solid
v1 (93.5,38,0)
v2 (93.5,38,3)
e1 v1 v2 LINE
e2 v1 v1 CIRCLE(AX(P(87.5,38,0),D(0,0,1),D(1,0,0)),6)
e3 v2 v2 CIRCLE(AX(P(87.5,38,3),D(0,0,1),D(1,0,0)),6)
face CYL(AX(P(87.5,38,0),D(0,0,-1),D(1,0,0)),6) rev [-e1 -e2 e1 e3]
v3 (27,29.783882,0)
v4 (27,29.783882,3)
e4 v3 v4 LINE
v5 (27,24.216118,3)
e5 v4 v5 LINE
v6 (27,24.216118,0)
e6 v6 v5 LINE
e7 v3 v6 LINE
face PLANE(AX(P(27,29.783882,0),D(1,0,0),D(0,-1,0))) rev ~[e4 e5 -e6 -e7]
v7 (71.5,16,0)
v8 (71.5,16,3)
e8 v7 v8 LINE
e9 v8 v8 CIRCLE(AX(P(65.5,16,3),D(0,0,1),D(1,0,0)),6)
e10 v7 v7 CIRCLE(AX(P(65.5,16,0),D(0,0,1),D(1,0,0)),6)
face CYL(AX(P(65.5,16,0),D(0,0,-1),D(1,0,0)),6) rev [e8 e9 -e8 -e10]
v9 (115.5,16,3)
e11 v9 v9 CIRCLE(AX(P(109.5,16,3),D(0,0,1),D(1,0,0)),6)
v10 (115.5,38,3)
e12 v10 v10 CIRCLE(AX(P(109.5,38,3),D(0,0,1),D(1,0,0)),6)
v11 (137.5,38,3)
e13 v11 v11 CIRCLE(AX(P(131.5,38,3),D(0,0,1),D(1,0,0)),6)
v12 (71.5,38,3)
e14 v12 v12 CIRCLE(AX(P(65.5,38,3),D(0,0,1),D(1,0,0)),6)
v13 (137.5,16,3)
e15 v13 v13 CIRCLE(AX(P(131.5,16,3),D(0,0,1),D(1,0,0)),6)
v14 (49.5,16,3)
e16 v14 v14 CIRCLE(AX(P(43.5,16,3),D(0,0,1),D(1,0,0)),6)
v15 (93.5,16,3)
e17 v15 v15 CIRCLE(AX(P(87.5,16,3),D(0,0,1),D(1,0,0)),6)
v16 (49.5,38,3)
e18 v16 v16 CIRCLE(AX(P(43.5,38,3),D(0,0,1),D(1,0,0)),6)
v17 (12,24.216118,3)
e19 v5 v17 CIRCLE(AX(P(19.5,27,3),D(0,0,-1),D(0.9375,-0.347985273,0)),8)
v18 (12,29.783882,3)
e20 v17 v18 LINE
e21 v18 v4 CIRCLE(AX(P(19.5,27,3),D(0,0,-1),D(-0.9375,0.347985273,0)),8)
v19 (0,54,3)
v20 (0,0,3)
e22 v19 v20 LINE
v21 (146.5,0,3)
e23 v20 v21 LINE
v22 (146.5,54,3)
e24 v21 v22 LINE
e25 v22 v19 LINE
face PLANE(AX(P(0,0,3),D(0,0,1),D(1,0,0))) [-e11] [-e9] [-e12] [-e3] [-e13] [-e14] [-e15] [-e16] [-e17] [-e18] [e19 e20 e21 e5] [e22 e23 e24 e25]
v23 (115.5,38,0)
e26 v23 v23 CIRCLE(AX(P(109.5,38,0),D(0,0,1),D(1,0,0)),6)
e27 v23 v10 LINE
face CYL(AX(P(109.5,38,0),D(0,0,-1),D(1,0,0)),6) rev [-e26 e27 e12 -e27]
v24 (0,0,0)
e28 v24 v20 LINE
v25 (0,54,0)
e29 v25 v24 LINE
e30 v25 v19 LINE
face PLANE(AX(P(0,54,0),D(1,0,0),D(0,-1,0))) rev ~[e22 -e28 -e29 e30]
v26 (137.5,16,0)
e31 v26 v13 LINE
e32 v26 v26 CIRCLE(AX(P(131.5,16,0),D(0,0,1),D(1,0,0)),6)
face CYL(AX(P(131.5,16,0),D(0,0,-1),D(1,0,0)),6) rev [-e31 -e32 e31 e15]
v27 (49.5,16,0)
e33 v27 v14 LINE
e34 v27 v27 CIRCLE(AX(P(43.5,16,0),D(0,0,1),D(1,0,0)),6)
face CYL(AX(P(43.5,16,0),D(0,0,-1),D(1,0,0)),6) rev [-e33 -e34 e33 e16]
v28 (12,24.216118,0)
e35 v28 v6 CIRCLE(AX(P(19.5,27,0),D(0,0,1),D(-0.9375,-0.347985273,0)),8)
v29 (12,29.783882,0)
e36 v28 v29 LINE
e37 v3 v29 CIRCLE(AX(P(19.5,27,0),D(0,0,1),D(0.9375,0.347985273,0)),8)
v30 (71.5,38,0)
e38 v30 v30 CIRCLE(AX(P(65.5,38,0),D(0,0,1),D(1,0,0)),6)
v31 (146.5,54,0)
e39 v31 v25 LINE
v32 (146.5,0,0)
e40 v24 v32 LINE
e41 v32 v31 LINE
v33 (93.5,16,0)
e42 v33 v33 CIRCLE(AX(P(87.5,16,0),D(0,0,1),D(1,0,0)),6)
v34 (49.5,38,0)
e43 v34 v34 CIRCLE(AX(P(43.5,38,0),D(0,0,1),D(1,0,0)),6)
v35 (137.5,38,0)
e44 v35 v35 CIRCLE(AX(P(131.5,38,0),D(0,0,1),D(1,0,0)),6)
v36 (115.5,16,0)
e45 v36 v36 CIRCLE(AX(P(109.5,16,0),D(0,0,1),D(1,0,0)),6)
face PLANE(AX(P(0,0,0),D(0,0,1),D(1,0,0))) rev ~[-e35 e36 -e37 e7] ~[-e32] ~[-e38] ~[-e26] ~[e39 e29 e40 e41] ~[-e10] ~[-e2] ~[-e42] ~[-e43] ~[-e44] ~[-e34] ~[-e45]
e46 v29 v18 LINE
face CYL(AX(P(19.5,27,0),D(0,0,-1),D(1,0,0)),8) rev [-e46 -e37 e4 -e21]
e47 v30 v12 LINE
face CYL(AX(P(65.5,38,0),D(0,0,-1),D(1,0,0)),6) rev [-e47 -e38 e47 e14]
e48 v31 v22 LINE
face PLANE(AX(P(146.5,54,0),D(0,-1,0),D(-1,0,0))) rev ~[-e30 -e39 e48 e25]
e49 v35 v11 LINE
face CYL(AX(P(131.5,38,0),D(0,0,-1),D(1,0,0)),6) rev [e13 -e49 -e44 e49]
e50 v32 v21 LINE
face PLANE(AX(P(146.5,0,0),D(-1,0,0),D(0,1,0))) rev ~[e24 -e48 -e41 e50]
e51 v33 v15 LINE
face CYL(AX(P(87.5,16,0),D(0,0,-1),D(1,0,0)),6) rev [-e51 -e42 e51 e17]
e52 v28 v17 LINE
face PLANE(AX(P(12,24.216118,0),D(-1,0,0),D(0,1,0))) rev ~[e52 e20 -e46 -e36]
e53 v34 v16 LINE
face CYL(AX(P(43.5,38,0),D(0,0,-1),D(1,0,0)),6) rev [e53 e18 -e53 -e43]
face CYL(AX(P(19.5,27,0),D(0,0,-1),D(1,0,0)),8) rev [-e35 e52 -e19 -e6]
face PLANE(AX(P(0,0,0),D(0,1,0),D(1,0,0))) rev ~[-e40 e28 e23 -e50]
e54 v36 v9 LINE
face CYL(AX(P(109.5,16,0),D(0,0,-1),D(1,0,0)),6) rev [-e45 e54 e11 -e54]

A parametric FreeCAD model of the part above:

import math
import FreeCAD as App
import Part
import Sketcher
from FreeCAD import Vector


def add_polygon(sketch, points):
    """Adds a closed chain of lines whose ends are joined by coincident constraints."""
    first, n = sketch.GeometryCount, len(points)
    for a, b in zip(points, points[1:] + points[:1]):
        sketch.addGeometry(Part.LineSegment(App.Vector(*a, 0), App.Vector(*b, 0)), False)
    for i in range(n):
        sketch.addConstraint(Sketcher.Constraint("Coincident", first + i, 2, first + (i + 1) % n, 1))

doc = App.newDocument("Part")
params = doc.addObject("Spreadsheet::Sheet", "Params")
for row, (alias, value) in enumerate([
    ("sketch1_diameter", "12 mm"),
    ("sketch1_radius", "8 mm"),
    ("pad1_length", "3 mm"),
], start=1):
    params.set(f"A{row}", alias)
    params.set(f"B{row}", "=" + value)
    params.setAlias(f"B{row}", alias)

body = doc.addObject("PartDesign::Body", "Body")

# Sketch on XY plane
sketch1 = body.newObject("Sketcher::SketchObject", "Sketch")
sketch1.AttachmentSupport = (doc.getObject("XY_Plane"), [""])
sketch1.MapMode = "FlatFace"
add_polygon(sketch1, [(0, 54), (0, 0), (146, 0), (146, 54)])  # lines 0-3
sketch1.addGeometry(Part.Circle(Vector(44, 16, 0), Vector(0, 0, 1), 6), False)  # 4
sketch1.addGeometry(Part.Circle(Vector(66, 16, 0), Vector(0, 0, 1), 6), False)  # 5
sketch1.addGeometry(Part.Circle(Vector(88, 16, 0), Vector(0, 0, 1), 6), False)  # 6
sketch1.addGeometry(Part.Circle(Vector(110, 16, 0), Vector(0, 0, 1), 6), False)  # 7
sketch1.addGeometry(Part.Circle(Vector(132, 16, 0), Vector(0, 0, 1), 6), False)  # 8
sketch1.addGeometry(Part.Circle(Vector(44, 38, 0), Vector(0, 0, 1), 6), False)  # 9
sketch1.addGeometry(Part.Circle(Vector(66, 38, 0), Vector(0, 0, 1), 6), False)  # 10
sketch1.addGeometry(Part.Circle(Vector(88, 38, 0), Vector(0, 0, 1), 6), False)  # 11
sketch1.addGeometry(Part.Circle(Vector(110, 38, 0), Vector(0, 0, 1), 6), False)  # 12
sketch1.addGeometry(Part.Circle(Vector(132, 38, 0), Vector(0, 0, 1), 6), False)  # 13
sketch1.addGeometry(Part.LineSegment(Vector(27, 30, 0), Vector(27, 24, 0)), False)  # 14
sketch1.addGeometry(Part.ArcOfCircle(Part.Circle(Vector(20, 27, 0), Vector(0, 0, 1), 8), math.radians(-160), math.radians(-20)), False)  # 15
sketch1.addGeometry(Part.LineSegment(Vector(12, 24, 0), Vector(12, 30, 0)), False)  # 16
sketch1.addGeometry(Part.ArcOfCircle(Part.Circle(Vector(20, 27, 0), Vector(0, 0, 1), 8), math.radians(20), math.radians(160)), False)  # 17
sketch1.addConstraint([
    Sketcher.Constraint("Coincident", 14, 2, 15, 2),
    Sketcher.Constraint("Coincident", 15, 1, 16, 1),
    Sketcher.Constraint("Coincident", 16, 2, 17, 2),
    Sketcher.Constraint("Coincident", 17, 1, 14, 1),
    Sketcher.Constraint("Vertical", 0),
    Sketcher.Constraint("Horizontal", 1),
    Sketcher.Constraint("Vertical", 2),
    Sketcher.Constraint("Horizontal", 3),
    Sketcher.Constraint("Vertical", 14),
    Sketcher.Constraint("Vertical", 16),
    Sketcher.Constraint("Coincident", 0, 2, -1, 1),
    Sketcher.Constraint("Coincident", 17, 3, 15, 3),
    Sketcher.Constraint("Equal", 4, 5),
    Sketcher.Constraint("Equal", 5, 6),
    Sketcher.Constraint("Equal", 6, 7),
    Sketcher.Constraint("Equal", 7, 8),
    Sketcher.Constraint("Equal", 8, 9),
    Sketcher.Constraint("Equal", 9, 10),
    Sketcher.Constraint("Equal", 10, 11),
    Sketcher.Constraint("Equal", 11, 12),
    Sketcher.Constraint("Equal", 12, 13),
    Sketcher.Constraint("Equal", 15, 17),
    Sketcher.Constraint("Horizontal", 4, 3, 5, 3),
    Sketcher.Constraint("Horizontal", 5, 3, 6, 3),
    Sketcher.Constraint("Horizontal", 6, 3, 7, 3),
    Sketcher.Constraint("Horizontal", 7, 3, 8, 3),
    Sketcher.Constraint("Horizontal", 9, 3, 10, 3),
    Sketcher.Constraint("Horizontal", 10, 3, 11, 3),
    Sketcher.Constraint("Horizontal", 11, 3, 12, 3),
    Sketcher.Constraint("Horizontal", 12, 3, 13, 3),
    Sketcher.Constraint("Horizontal", 14, 2, 15, 1),
    Sketcher.Constraint("Vertical", 4, 3, 9, 3),
    Sketcher.Constraint("Vertical", 5, 3, 10, 3),
    Sketcher.Constraint("Vertical", 6, 3, 11, 3),
    Sketcher.Constraint("Vertical", 7, 3, 12, 3),
    Sketcher.Constraint("Vertical", 8, 3, 13, 3),
    Sketcher.Constraint("Diameter", 4, 12.0),
    Sketcher.Constraint("Radius", 15, 8.0),
    Sketcher.Constraint("DistanceY", -1, 1, 4, 3, 16.0),
    Sketcher.Constraint("DistanceY", -1, 1, 15, 3, 27.0),
    Sketcher.Constraint("DistanceX", -1, 1, 14, 2, 27.0),
    Sketcher.Constraint("DistanceX", -1, 1, 15, 1, 12.0),
    Sketcher.Constraint("DistanceX", 4, 3, 5, 3, 22.0),
    Sketcher.Constraint("DistanceX", 5, 3, 6, 3, 22.0),
    Sketcher.Constraint("DistanceX", 6, 3, 7, 3, 22.0),
    Sketcher.Constraint("DistanceX", 7, 3, 8, 3, 22.0),
    Sketcher.Constraint("DistanceY", 4, 3, 9, 3, 22.0),
    Sketcher.Constraint("DistanceX", 15, 3, 4, 3, 24.0),
    Sketcher.Constraint("DistanceX", 8, 3, 1, 2, 15.0),
    Sketcher.Constraint("DistanceY", 13, 3, 2, 2, 16.0),
])
sketch1.setExpression("Constraints[40]", "Params.sketch1_diameter")
sketch1.setExpression("Constraints[41]", "Params.sketch1_radius")
pad1 = body.newObject("PartDesign::Pad", "Pad")
pad1.Profile = sketch1
pad1.setExpression("Length", "Params.pad1_length")

doc.recompute()
